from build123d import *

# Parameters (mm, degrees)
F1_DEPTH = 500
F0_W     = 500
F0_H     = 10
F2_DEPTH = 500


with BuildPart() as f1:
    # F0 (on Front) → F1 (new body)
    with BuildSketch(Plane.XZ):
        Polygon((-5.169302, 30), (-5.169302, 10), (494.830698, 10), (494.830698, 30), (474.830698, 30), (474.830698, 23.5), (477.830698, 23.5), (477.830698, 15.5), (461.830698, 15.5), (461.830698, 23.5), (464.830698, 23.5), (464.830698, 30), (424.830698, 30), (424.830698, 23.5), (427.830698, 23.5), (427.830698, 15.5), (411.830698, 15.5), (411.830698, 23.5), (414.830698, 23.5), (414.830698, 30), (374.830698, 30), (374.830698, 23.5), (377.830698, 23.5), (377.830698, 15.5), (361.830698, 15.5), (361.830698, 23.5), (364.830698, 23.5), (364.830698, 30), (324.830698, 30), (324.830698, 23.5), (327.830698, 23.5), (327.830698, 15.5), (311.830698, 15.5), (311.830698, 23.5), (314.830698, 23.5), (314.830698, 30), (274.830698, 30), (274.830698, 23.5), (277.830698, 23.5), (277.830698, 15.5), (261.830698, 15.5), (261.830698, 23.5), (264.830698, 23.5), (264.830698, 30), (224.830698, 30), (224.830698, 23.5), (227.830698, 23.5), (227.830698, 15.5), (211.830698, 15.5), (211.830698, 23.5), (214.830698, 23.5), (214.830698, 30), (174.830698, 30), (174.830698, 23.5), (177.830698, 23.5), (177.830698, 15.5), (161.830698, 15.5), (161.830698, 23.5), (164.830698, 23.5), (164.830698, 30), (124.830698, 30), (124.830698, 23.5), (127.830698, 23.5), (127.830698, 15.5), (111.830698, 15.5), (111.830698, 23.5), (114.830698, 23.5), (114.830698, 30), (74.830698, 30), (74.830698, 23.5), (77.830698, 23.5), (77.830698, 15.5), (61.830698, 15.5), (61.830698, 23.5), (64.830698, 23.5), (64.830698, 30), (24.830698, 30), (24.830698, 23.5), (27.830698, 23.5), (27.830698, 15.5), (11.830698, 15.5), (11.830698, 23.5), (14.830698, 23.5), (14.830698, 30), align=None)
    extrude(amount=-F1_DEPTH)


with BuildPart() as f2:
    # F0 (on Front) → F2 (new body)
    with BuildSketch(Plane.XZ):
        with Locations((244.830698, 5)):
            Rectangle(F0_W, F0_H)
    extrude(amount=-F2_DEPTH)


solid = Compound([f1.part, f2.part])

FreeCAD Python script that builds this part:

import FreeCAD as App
import Part
import Sketcher
from FreeCAD import Vector
Q = App.Units.Quantity

doc = App.newDocument("Part")
body = doc.addObject("PartDesign::Body", "Body")

# Sketch on XZ plane
sketch1 = body.newObject("Sketcher::SketchObject", "Sketch")
sketch1.AttachmentSupport = (doc.getObject("XZ_Plane"), [""])
sketch1.MapMode = "FlatFace"
sketch1.addGeometry([
    Part.LineSegment(Vector(-5.169302, 30, 0), Vector(-5.169302, 10, 0)),  # 0
    Part.LineSegment(Vector(-5.169302, 10, 0), Vector(494.830698, 10, 0)),  # 1
    Part.LineSegment(Vector(494.830698, 10, 0), Vector(494.830698, 30, 0)),  # 2
    Part.LineSegment(Vector(494.830698, 30, 0), Vector(474.830698, 30, 0)),  # 3
    Part.LineSegment(Vector(474.830698, 30, 0), Vector(474.830698, 23.5, 0)),  # 4
    Part.LineSegment(Vector(474.830698, 23.5, 0), Vector(477.830698, 23.5, 0)),  # 5
    Part.LineSegment(Vector(477.830698, 23.5, 0), Vector(477.830698, 15.5, 0)),  # 6
    Part.LineSegment(Vector(477.830698, 15.5, 0), Vector(461.830698, 15.5, 0)),  # 7
    Part.LineSegment(Vector(461.830698, 15.5, 0), Vector(461.830698, 23.5, 0)),  # 8
    Part.LineSegment(Vector(461.830698, 23.5, 0), Vector(464.830698, 23.5, 0)),  # 9
    Part.LineSegment(Vector(464.830698, 23.5, 0), Vector(464.830698, 30, 0)),  # 10
    Part.LineSegment(Vector(464.830698, 30, 0), Vector(424.830698, 30, 0)),  # 11
    Part.LineSegment(Vector(424.830698, 30, 0), Vector(424.830698, 23.5, 0)),  # 12
    Part.LineSegment(Vector(424.830698, 23.5, 0), Vector(427.830698, 23.5, 0)),  # 13
    Part.LineSegment(Vector(427.830698, 23.5, 0), Vector(427.830698, 15.5, 0)),  # 14
    Part.LineSegment(Vector(427.830698, 15.5, 0), Vector(411.830698, 15.5, 0)),  # 15
    Part.LineSegment(Vector(411.830698, 15.5, 0), Vector(411.830698, 23.5, 0)),  # 16
    Part.LineSegment(Vector(411.830698, 23.5, 0), Vector(414.830698, 23.5, 0)),  # 17
    Part.LineSegment(Vector(414.830698, 23.5, 0), Vector(414.830698, 30, 0)),  # 18
    Part.LineSegment(Vector(414.830698, 30, 0), Vector(374.830698, 30, 0)),  # 19
    Part.LineSegment(Vector(374.830698, 30, 0), Vector(374.830698, 23.5, 0)),  # 20
    Part.LineSegment(Vector(374.830698, 23.5, 0), Vector(377.830698, 23.5, 0)),  # 21
    Part.LineSegment(Vector(377.830698, 23.5, 0), Vector(377.830698, 15.5, 0)),  # 22
    Part.LineSegment(Vector(377.830698, 15.5, 0), Vector(361.830698, 15.5, 0)),  # 23
    Part.LineSegment(Vector(361.830698, 15.5, 0), Vector(361.830698, 23.5, 0)),  # 24
    Part.LineSegment(Vector(361.830698, 23.5, 0), Vector(364.830698, 23.5, 0)),  # 25
    Part.LineSegment(Vector(364.830698, 23.5, 0), Vector(364.830698, 30, 0)),  # 26
    Part.LineSegment(Vector(364.830698, 30, 0), Vector(324.830698, 30, 0)),  # 27
    Part.LineSegment(Vector(324.830698, 30, 0), Vector(324.830698, 23.5, 0)),  # 28
    Part.LineSegment(Vector(324.830698, 23.5, 0), Vector(327.830698, 23.5, 0)),  # 29
    Part.LineSegment(Vector(327.830698, 23.5, 0), Vector(327.830698, 15.5, 0)),  # 30
    Part.LineSegment(Vector(327.830698, 15.5, 0), Vector(311.830698, 15.5, 0)),  # 31
    Part.LineSegment(Vector(311.830698, 15.5, 0), Vector(311.830698, 23.5, 0)),  # 32
    Part.LineSegment(Vector(311.830698, 23.5, 0), Vector(314.830698, 23.5, 0)),  # 33
    Part.LineSegment(Vector(314.830698, 23.5, 0), Vector(314.830698, 30, 0)),  # 34
    Part.LineSegment(Vector(314.830698, 30, 0), Vector(274.830698, 30, 0)),  # 35
    Part.LineSegment(Vector(274.830698, 30, 0), Vector(274.830698, 23.5, 0)),  # 36
    Part.LineSegment(Vector(274.830698, 23.5, 0), Vector(277.830698, 23.5, 0)),  # 37
    Part.LineSegment(Vector(277.830698, 23.5, 0), Vector(277.830698, 15.5, 0)),  # 38
    Part.LineSegment(Vector(277.830698, 15.5, 0), Vector(261.830698, 15.5, 0)),  # 39
    Part.LineSegment(Vector(261.830698, 15.5, 0), Vector(261.830698, 23.5, 0)),  # 40
    Part.LineSegment(Vector(261.830698, 23.5, 0), Vector(264.830698, 23.5, 0)),  # 41
    Part.LineSegment(Vector(264.830698, 23.5, 0), Vector(264.830698, 30, 0)),  # 42
    Part.LineSegment(Vector(264.830698, 30, 0), Vector(224.830698, 30, 0)),  # 43
    Part.LineSegment(Vector(224.830698, 30, 0), Vector(224.830698, 23.5, 0)),  # 44
    Part.LineSegment(Vector(224.830698, 23.5, 0), Vector(227.830698, 23.5, 0)),  # 45
    Part.LineSegment(Vector(227.830698, 23.5, 0), Vector(227.830698, 15.5, 0)),  # 46
    Part.LineSegment(Vector(227.830698, 15.5, 0), Vector(211.830698, 15.5, 0)),  # 47
    Part.LineSegment(Vector(211.830698, 15.5, 0), Vector(211.830698, 23.5, 0)),  # 48
    Part.LineSegment(Vector(211.830698, 23.5, 0), Vector(214.830698, 23.5, 0)),  # 49
    Part.LineSegment(Vector(214.830698, 23.5, 0), Vector(214.830698, 30, 0)),  # 50
    Part.LineSegment(Vector(214.830698, 30, 0), Vector(174.830698, 30, 0)),  # 51
    Part.LineSegment(Vector(174.830698, 30, 0), Vector(174.830698, 23.5, 0)),  # 52
    Part.LineSegment(Vector(174.830698, 23.5, 0), Vector(177.830698, 23.5, 0)),  # 53
    Part.LineSegment(Vector(177.830698, 23.5, 0), Vector(177.830698, 15.5, 0)),  # 54
    Part.LineSegment(Vector(177.830698, 15.5, 0), Vector(161.830698, 15.5, 0)),  # 55
    Part.LineSegment(Vector(161.830698, 15.5, 0), Vector(161.830698, 23.5, 0)),  # 56
    Part.LineSegment(Vector(161.830698, 23.5, 0), Vector(164.830698, 23.5, 0)),  # 57
    Part.LineSegment(Vector(164.830698, 23.5, 0), Vector(164.830698, 30, 0)),  # 58
    Part.LineSegment(Vector(164.830698, 30, 0), Vector(124.830698, 30, 0)),  # 59
    Part.LineSegment(Vector(124.830698, 30, 0), Vector(124.830698, 23.5, 0)),  # 60
    Part.LineSegment(Vector(124.830698, 23.5, 0), Vector(127.830698, 23.5, 0)),  # 61
    Part.LineSegment(Vector(127.830698, 23.5, 0), Vector(127.830698, 15.5, 0)),  # 62
    Part.LineSegment(Vector(127.830698, 15.5, 0), Vector(111.830698, 15.5, 0)),  # 63
    Part.LineSegment(Vector(111.830698, 15.5, 0), Vector(111.830698, 23.5, 0)),  # 64
    Part.LineSegment(Vector(111.830698, 23.5, 0), Vector(114.830698, 23.5, 0)),  # 65
    Part.LineSegment(Vector(114.830698, 23.5, 0), Vector(114.830698, 30, 0)),  # 66
    Part.LineSegment(Vector(114.830698, 30, 0), Vector(74.830698, 30, 0)),  # 67
    Part.LineSegment(Vector(74.830698, 30, 0), Vector(74.830698, 23.5, 0)),  # 68
    Part.LineSegment(Vector(74.830698, 23.5, 0), Vector(77.830698, 23.5, 0)),  # 69
    Part.LineSegment(Vector(77.830698, 23.5, 0), Vector(77.830698, 15.5, 0)),  # 70
    Part.LineSegment(Vector(77.830698, 15.5, 0), Vector(61.830698, 15.5, 0)),  # 71
    Part.LineSegment(Vector(61.830698, 15.5, 0), Vector(61.830698, 23.5, 0)),  # 72
    Part.LineSegment(Vector(61.830698, 23.5, 0), Vector(64.830698, 23.5, 0)),  # 73
    Part.LineSegment(Vector(64.830698, 23.5, 0), Vector(64.830698, 30, 0)),  # 74
    Part.LineSegment(Vector(64.830698, 30, 0), Vector(24.830698, 30, 0)),  # 75
    Part.LineSegment(Vector(24.830698, 30, 0), Vector(24.830698, 23.5, 0)),  # 76
    Part.LineSegment(Vector(24.830698, 23.5, 0), Vector(27.830698, 23.5, 0)),  # 77
    Part.LineSegment(Vector(27.830698, 23.5, 0), Vector(27.830698, 15.5, 0)),  # 78
    Part.LineSegment(Vector(27.830698, 15.5, 0), Vector(11.830698, 15.5, 0)),  # 79
    Part.LineSegment(Vector(11.830698, 15.5, 0), Vector(11.830698, 23.5, 0)),  # 80
    Part.LineSegment(Vector(11.830698, 23.5, 0), Vector(14.830698, 23.5, 0)),  # 81
    Part.LineSegment(Vector(14.830698, 23.5, 0), Vector(14.830698, 30, 0)),  # 82
    Part.LineSegment(Vector(14.830698, 30, 0), Vector(-5.169302, 30, 0)),  # 83
], False)
sketch1.addConstraint([
    Sketcher.Constraint("Coincident", 0, 2, 1, 1),
    Sketcher.Constraint("Coincident", 1, 2, 2, 1),
    Sketcher.Constraint("Coincident", 2, 2, 3, 1),
    Sketcher.Constraint("Coincident", 3, 2, 4, 1),
    Sketcher.Constraint("Coincident", 4, 2, 5, 1),
    Sketcher.Constraint("Coincident", 5, 2, 6, 1),
    Sketcher.Constraint("Coincident", 6, 2, 7, 1),
    Sketcher.Constraint("Coincident", 7, 2, 8, 1),
    Sketcher.Constraint("Coincident", 8, 2, 9, 1),
    Sketcher.Constraint("Coincident", 9, 2, 10, 1),
    Sketcher.Constraint("Coincident", 10, 2, 11, 1),
    Sketcher.Constraint("Coincident", 11, 2, 12, 1),
    Sketcher.Constraint("Coincident", 12, 2, 13, 1),
    Sketcher.Constraint("Coincident", 13, 2, 14, 1),
    Sketcher.Constraint("Coincident", 14, 2, 15, 1),
    Sketcher.Constraint("Coincident", 15, 2, 16, 1),
    Sketcher.Constraint("Coincident", 16, 2, 17, 1),
    Sketcher.Constraint("Coincident", 17, 2, 18, 1),
    Sketcher.Constraint("Coincident", 18, 2, 19, 1),
    Sketcher.Constraint("Coincident", 19, 2, 20, 1),
    Sketcher.Constraint("Coincident", 20, 2, 21, 1),
    Sketcher.Constraint("Coincident", 21, 2, 22, 1),
    Sketcher.Constraint("Coincident", 22, 2, 23, 1),
    Sketcher.Constraint("Coincident", 23, 2, 24, 1),
    Sketcher.Constraint("Coincident", 24, 2, 25, 1),
    Sketcher.Constraint("Coincident", 25, 2, 26, 1),
    Sketcher.Constraint("Coincident", 26, 2, 27, 1),
    Sketcher.Constraint("Coincident", 27, 2, 28, 1),
    Sketcher.Constraint("Coincident", 28, 2, 29, 1),
    Sketcher.Constraint("Coincident", 29, 2, 30, 1),
    Sketcher.Constraint("Coincident", 30, 2, 31, 1),
    Sketcher.Constraint("Coincident", 31, 2, 32, 1),
    Sketcher.Constraint("Coincident", 32, 2, 33, 1),
    Sketcher.Constraint("Coincident", 33, 2, 34, 1),
    Sketcher.Constraint("Coincident", 34, 2, 35, 1),
    Sketcher.Constraint("Coincident", 35, 2, 36, 1),
    Sketcher.Constraint("Coincident", 36, 2, 37, 1),
    Sketcher.Constraint("Coincident", 37, 2, 38, 1),
    Sketcher.Constraint("Coincident", 38, 2, 39, 1),
    Sketcher.Constraint("Coincident", 39, 2, 40, 1),
    Sketcher.Constraint("Coincident", 40, 2, 41, 1),
    Sketcher.Constraint("Coincident", 41, 2, 42, 1),
    Sketcher.Constraint("Coincident", 42, 2, 43, 1),
    Sketcher.Constraint("Coincident", 43, 2, 44, 1),
    Sketcher.Constraint("Coincident", 44, 2, 45, 1),
    Sketcher.Constraint("Coincident", 45, 2, 46, 1),
    Sketcher.Constraint("Coincident", 46, 2, 47, 1),
    Sketcher.Constraint("Coincident", 47, 2, 48, 1),
    Sketcher.Constraint("Coincident", 48, 2, 49, 1),
    Sketcher.Constraint("Coincident", 49, 2, 50, 1),
    Sketcher.Constraint("Coincident", 50, 2, 51, 1),
    Sketcher.Constraint("Coincident", 51, 2, 52, 1),
    Sketcher.Constraint("Coincident", 52, 2, 53, 1),
    Sketcher.Constraint("Coincident", 53, 2, 54, 1),
    Sketcher.Constraint("Coincident", 54, 2, 55, 1),
    Sketcher.Constraint("Coincident", 55, 2, 56, 1),
    Sketcher.Constraint("Coincident", 56, 2, 57, 1),
    Sketcher.Constraint("Coincident", 57, 2, 58, 1),
    Sketcher.Constraint("Coincident", 58, 2, 59, 1),
    Sketcher.Constraint("Coincident", 59, 2, 60, 1),
    Sketcher.Constraint("Coincident", 60, 2, 61, 1),
    Sketcher.Constraint("Coincident", 61, 2, 62, 1),
    Sketcher.Constraint("Coincident", 62, 2, 63, 1),
    Sketcher.Constraint("Coincident", 63, 2, 64, 1),
    Sketcher.Constraint("Coincident", 64, 2, 65, 1),
    Sketcher.Constraint("Coincident", 65, 2, 66, 1),
    Sketcher.Constraint("Coincident", 66, 2, 67, 1),
    Sketcher.Constraint("Coincident", 67, 2, 68, 1),
    Sketcher.Constraint("Coincident", 68, 2, 69, 1),
    Sketcher.Constraint("Coincident", 69, 2, 70, 1),
    Sketcher.Constraint("Coincident", 70, 2, 71, 1),
    Sketcher.Constraint("Coincident", 71, 2, 72, 1),
    Sketcher.Constraint("Coincident", 72, 2, 73, 1),
    Sketcher.Constraint("Coincident", 73, 2, 74, 1),
    Sketcher.Constraint("Coincident", 74, 2, 75, 1),
    Sketcher.Constraint("Coincident", 75, 2, 76, 1),
    Sketcher.Constraint("Coincident", 76, 2, 77, 1),
    Sketcher.Constraint("Coincident", 77, 2, 78, 1),
    Sketcher.Constraint("Coincident", 78, 2, 79, 1),
    Sketcher.Constraint("Coincident", 79, 2, 80, 1),
    Sketcher.Constraint("Coincident", 80, 2, 81, 1),
    Sketcher.Constraint("Coincident", 81, 2, 82, 1),
    Sketcher.Constraint("Coincident", 82, 2, 83, 1),
    Sketcher.Constraint("Coincident", 83, 2, 0, 1),
    Sketcher.Constraint("Vertical", 0),
    Sketcher.Constraint("Horizontal", 1),
    Sketcher.Constraint("Vertical", 2),
    Sketcher.Constraint("Horizontal", 3),
    Sketcher.Constraint("Vertical", 4),
    Sketcher.Constraint("Horizontal", 5),
    Sketcher.Constraint("Vertical", 6),
    Sketcher.Constraint("Horizontal", 7),
    Sketcher.Constraint("Vertical", 8),
    Sketcher.Constraint("Horizontal", 9),
    Sketcher.Constraint("Vertical", 10),
    Sketcher.Constraint("Horizontal", 11),
    Sketcher.Constraint("Vertical", 12),
    Sketcher.Constraint("Horizontal", 13),
    Sketcher.Constraint("Vertical", 14),
    Sketcher.Constraint("Horizontal", 15),
    Sketcher.Constraint("Vertical", 16),
    Sketcher.Constraint("Horizontal", 17),
    Sketcher.Constraint("Vertical", 18),
    Sketcher.Constraint("Horizontal", 19),
    Sketcher.Constraint("Vertical", 20),
    Sketcher.Constraint("Horizontal", 21),
    Sketcher.Constraint("Vertical", 22),
    Sketcher.Constraint("Horizontal", 23),
    Sketcher.Constraint("Vertical", 24),
    Sketcher.Constraint("Horizontal", 25),
    Sketcher.Constraint("Vertical", 26),
    Sketcher.Constraint("Horizontal", 27),
    Sketcher.Constraint("Vertical", 28),
    Sketcher.Constraint("Horizontal", 29),
    Sketcher.Constraint("Vertical", 30),
    Sketcher.Constraint("Horizontal", 31),
    Sketcher.Constraint("Vertical", 32),
    Sketcher.Constraint("Horizontal", 33),
    Sketcher.Constraint("Vertical", 34),
    Sketcher.Constraint("Horizontal", 35),
    Sketcher.Constraint("Vertical", 36),
    Sketcher.Constraint("Horizontal", 37),
    Sketcher.Constraint("Vertical", 38),
    Sketcher.Constraint("Horizontal", 39),
    Sketcher.Constraint("Vertical", 40),
    Sketcher.Constraint("Horizontal", 41),
    Sketcher.Constraint("Vertical", 42),
    Sketcher.Constraint("Horizontal", 43),
    Sketcher.Constraint("Vertical", 44),
    Sketcher.Constraint("Horizontal", 45),
    Sketcher.Constraint("Vertical", 46),
    Sketcher.Constraint("Horizontal", 47),
    Sketcher.Constraint("Vertical", 48),
    Sketcher.Constraint("Horizontal", 49),
    Sketcher.Constraint("Vertical", 50),
    Sketcher.Constraint("Horizontal", 51),
    Sketcher.Constraint("Vertical", 52),
    Sketcher.Constraint("Horizontal", 53),
    Sketcher.Constraint("Vertical", 54),
    Sketcher.Constraint("Horizontal", 55),
    Sketcher.Constraint("Vertical", 56),
    Sketcher.Constraint("Horizontal", 57),
    Sketcher.Constraint("Vertical", 58),
    Sketcher.Constraint("Horizontal", 59),
    Sketcher.Constraint("Vertical", 60),
    Sketcher.Constraint("Horizontal", 61),
    Sketcher.Constraint("Vertical", 62),
    Sketcher.Constraint("Horizontal", 63),
    Sketcher.Constraint("Vertical", 64),
    Sketcher.Constraint("Horizontal", 65),
    Sketcher.Constraint("Vertical", 66),
    Sketcher.Constraint("Horizontal", 67),
    Sketcher.Constraint("Vertical", 68),
    Sketcher.Constraint("Horizontal", 69),
    Sketcher.Constraint("Vertical", 70),
    Sketcher.Constraint("Horizontal", 71),
    Sketcher.Constraint("Vertical", 72),
    Sketcher.Constraint("Horizontal", 73),
    Sketcher.Constraint("Vertical", 74),
    Sketcher.Constraint("Horizontal", 75),
    Sketcher.Constraint("Vertical", 76),
    Sketcher.Constraint("Horizontal", 77),
    Sketcher.Constraint("Vertical", 78),
    Sketcher.Constraint("Horizontal", 79),
    Sketcher.Constraint("Vertical", 80),
    Sketcher.Constraint("Horizontal", 81),
    Sketcher.Constraint("Vertical", 82),
    Sketcher.Constraint("Horizontal", 83),
    Sketcher.Constraint("Horizontal", 5, 2, 8, 2),
    Sketcher.Constraint("Horizontal", 3, 2, 10, 2),
    Sketcher.Constraint("Horizontal", 9, 2, 12, 2),
    Sketcher.Constraint("Horizontal", 7, 2, 14, 2),
    Sketcher.Constraint("Horizontal", 13, 2, 16, 2),
    Sketcher.Constraint("Horizontal", 11, 2, 18, 2),
    Sketcher.Constraint("Horizontal", 17, 2, 20, 2),
    Sketcher.Constraint("Horizontal", 15, 2, 22, 2),
    Sketcher.Constraint("Horizontal", 21, 2, 24, 2),
    Sketcher.Constraint("Horizontal", 19, 2, 26, 2),
    Sketcher.Constraint("Horizontal", 25, 2, 28, 2),
    Sketcher.Constraint("Horizontal", 23, 2, 30, 2),
    Sketcher.Constraint("Horizontal", 29, 2, 32, 2),
    Sketcher.Constraint("Horizontal", 27, 2, 34, 2),
    Sketcher.Constraint("Horizontal", 33, 2, 36, 2),
    Sketcher.Constraint("Horizontal", 31, 2, 38, 2),
    Sketcher.Constraint("Horizontal", 37, 2, 40, 2),
    Sketcher.Constraint("Horizontal", 35, 2, 42, 2),
    Sketcher.Constraint("Horizontal", 41, 2, 44, 2),
    Sketcher.Constraint("Horizontal", 39, 2, 46, 2),
    Sketcher.Constraint("Horizontal", 45, 2, 48, 2),
    Sketcher.Constraint("Horizontal", 43, 2, 50, 2),
    Sketcher.Constraint("Horizontal", 49, 2, 52, 2),
    Sketcher.Constraint("Horizontal", 47, 2, 54, 2),
    Sketcher.Constraint("Horizontal", 53, 2, 56, 2),
    Sketcher.Constraint("Horizontal", 51, 2, 58, 2),
    Sketcher.Constraint("Horizontal", 57, 2, 60, 2),
    Sketcher.Constraint("Horizontal", 55, 2, 62, 2),
    Sketcher.Constraint("Horizontal", 61, 2, 64, 2),
    Sketcher.Constraint("Horizontal", 59, 2, 66, 2),
    Sketcher.Constraint("Horizontal", 65, 2, 68, 2),
    Sketcher.Constraint("Horizontal", 63, 2, 70, 2),
    Sketcher.Constraint("Horizontal", 69, 2, 72, 2),
    Sketcher.Constraint("Horizontal", 67, 2, 74, 2),
    Sketcher.Constraint("Horizontal", 73, 2, 76, 2),
    Sketcher.Constraint("Horizontal", 71, 2, 78, 2),
    Sketcher.Constraint("Horizontal", 77, 2, 80, 2),
    Sketcher.Constraint("Horizontal", 75, 2, 82, 2),
    Sketcher.Constraint("Equal", 5, 9),
    Sketcher.Constraint("Equal", 9, 13),
    Sketcher.Constraint("Equal", 7, 15),
    Sketcher.Constraint("Equal", 13, 17),
    Sketcher.Constraint("Equal", 11, 19),
    Sketcher.Constraint("Equal", 17, 21),
    Sketcher.Constraint("Equal", 15, 23),
    Sketcher.Constraint("Equal", 21, 25),
    Sketcher.Constraint("Equal", 19, 27),
    Sketcher.Constraint("Equal", 25, 29),
    Sketcher.Constraint("Equal", 23, 31),
    Sketcher.Constraint("Equal", 29, 33),
    Sketcher.Constraint("Equal", 27, 35),
    Sketcher.Constraint("Equal", 33, 37),
    Sketcher.Constraint("Equal", 31, 39),
    Sketcher.Constraint("Equal", 37, 41),
    Sketcher.Constraint("Equal", 35, 43),
    Sketcher.Constraint("Equal", 41, 45),
    Sketcher.Constraint("Equal", 39, 47),
    Sketcher.Constraint("Equal", 45, 49),
    Sketcher.Constraint("Equal", 43, 51),
    Sketcher.Constraint("Equal", 49, 53),
    Sketcher.Constraint("Equal", 47, 55),
    Sketcher.Constraint("Equal", 53, 57),
    Sketcher.Constraint("Equal", 51, 59),
    Sketcher.Constraint("Equal", 57, 61),
    Sketcher.Constraint("Equal", 55, 63),
    Sketcher.Constraint("Equal", 61, 65),
    Sketcher.Constraint("Equal", 59, 67),
    Sketcher.Constraint("Equal", 65, 69),
    Sketcher.Constraint("Equal", 63, 71),
    Sketcher.Constraint("Equal", 69, 73),
    Sketcher.Constraint("Equal", 67, 75),
    Sketcher.Constraint("Equal", 73, 77),
    Sketcher.Constraint("Equal", 71, 79),
    Sketcher.Constraint("Equal", 77, 81),
    Sketcher.Constraint("Equal", 3, 83),
    Sketcher.Constraint("Equal", 83, 0),
    Sketcher.Constraint("DistanceX", 1, 1, 1, 2, Q("500 mm")),
    Sketcher.Constraint("DistanceX", 3, 2, 3, 1, Q("20 mm")),
    Sketcher.Constraint("DistanceX", 5, 1, 5, 2, Q("3 mm")),
    Sketcher.Constraint("DistanceX", 7, 2, 7, 1, Q("16 mm")),
    Sketcher.Constraint("DistanceY", 6, 2, 6, 1, Q("8 mm")),
    Sketcher.Constraint("DistanceY", 4, 2, 4, 1, Q("6.5 mm")),
    Sketcher.Constraint("DistanceY", -1, 1, 0, 2, Q("10 mm")),
    Sketcher.Constraint("DistanceX", -1, 1, 1, 2, Q("494.830698 mm")),
])
pad1 = body.newObject("PartDesign::Pad", "Pad")
pad1.Profile = sketch1
pad1.Length = 500
pad1.Reversed = True
body2 = doc.addObject("PartDesign::Body", "Body001")

# Sketch on XZ plane
sketch2 = body2.newObject("Sketcher::SketchObject", "Sketch001")
sketch2.AttachmentSupport = (doc.getObject("XZ_Plane001"), [""])
sketch2.MapMode = "FlatFace"
sketch2.addGeometry([
    Part.LineSegment(Vector(-5.169302, 10, 0), Vector(-5.169302, 0, 0)),
    Part.LineSegment(Vector(-5.169302, 0, 0), Vector(494.830698, 0, 0)),
    Part.LineSegment(Vector(494.830698, 0, 0), Vector(494.830698, 10, 0)),
    Part.LineSegment(Vector(494.830698, 10, 0), Vector(-5.169302, 10, 0)),
], False)
sketch2.addConstraint([
    Sketcher.Constraint("Coincident", 0, 2, 1, 1),
    Sketcher.Constraint("Coincident", 1, 2, 2, 1),
    Sketcher.Constraint("Coincident", 2, 2, 3, 1),
    Sketcher.Constraint("Coincident", 3, 2, 0, 1),
    Sketcher.Constraint("Vertical", 0),
    Sketcher.Constraint("Horizontal", 1),
    Sketcher.Constraint("Vertical", 2),
    Sketcher.Constraint("Horizontal", 3),
    Sketcher.Constraint("PointOnObject", 0, 2, -1),
    Sketcher.Constraint("DistanceX", 1, 1, 1, 2, Q("500 mm")),
    Sketcher.Constraint("DistanceY", 0, 2, 0, 1, Q("10 mm")),
    Sketcher.Constraint("DistanceX", -1, 1, 1, 2, Q("494.830698 mm")),
])
pad2 = body2.newObject("PartDesign::Pad", "Pad001")
pad2.Profile = sketch2
pad2.Length = 500
pad2.Reversed = True

doc.recompute()
